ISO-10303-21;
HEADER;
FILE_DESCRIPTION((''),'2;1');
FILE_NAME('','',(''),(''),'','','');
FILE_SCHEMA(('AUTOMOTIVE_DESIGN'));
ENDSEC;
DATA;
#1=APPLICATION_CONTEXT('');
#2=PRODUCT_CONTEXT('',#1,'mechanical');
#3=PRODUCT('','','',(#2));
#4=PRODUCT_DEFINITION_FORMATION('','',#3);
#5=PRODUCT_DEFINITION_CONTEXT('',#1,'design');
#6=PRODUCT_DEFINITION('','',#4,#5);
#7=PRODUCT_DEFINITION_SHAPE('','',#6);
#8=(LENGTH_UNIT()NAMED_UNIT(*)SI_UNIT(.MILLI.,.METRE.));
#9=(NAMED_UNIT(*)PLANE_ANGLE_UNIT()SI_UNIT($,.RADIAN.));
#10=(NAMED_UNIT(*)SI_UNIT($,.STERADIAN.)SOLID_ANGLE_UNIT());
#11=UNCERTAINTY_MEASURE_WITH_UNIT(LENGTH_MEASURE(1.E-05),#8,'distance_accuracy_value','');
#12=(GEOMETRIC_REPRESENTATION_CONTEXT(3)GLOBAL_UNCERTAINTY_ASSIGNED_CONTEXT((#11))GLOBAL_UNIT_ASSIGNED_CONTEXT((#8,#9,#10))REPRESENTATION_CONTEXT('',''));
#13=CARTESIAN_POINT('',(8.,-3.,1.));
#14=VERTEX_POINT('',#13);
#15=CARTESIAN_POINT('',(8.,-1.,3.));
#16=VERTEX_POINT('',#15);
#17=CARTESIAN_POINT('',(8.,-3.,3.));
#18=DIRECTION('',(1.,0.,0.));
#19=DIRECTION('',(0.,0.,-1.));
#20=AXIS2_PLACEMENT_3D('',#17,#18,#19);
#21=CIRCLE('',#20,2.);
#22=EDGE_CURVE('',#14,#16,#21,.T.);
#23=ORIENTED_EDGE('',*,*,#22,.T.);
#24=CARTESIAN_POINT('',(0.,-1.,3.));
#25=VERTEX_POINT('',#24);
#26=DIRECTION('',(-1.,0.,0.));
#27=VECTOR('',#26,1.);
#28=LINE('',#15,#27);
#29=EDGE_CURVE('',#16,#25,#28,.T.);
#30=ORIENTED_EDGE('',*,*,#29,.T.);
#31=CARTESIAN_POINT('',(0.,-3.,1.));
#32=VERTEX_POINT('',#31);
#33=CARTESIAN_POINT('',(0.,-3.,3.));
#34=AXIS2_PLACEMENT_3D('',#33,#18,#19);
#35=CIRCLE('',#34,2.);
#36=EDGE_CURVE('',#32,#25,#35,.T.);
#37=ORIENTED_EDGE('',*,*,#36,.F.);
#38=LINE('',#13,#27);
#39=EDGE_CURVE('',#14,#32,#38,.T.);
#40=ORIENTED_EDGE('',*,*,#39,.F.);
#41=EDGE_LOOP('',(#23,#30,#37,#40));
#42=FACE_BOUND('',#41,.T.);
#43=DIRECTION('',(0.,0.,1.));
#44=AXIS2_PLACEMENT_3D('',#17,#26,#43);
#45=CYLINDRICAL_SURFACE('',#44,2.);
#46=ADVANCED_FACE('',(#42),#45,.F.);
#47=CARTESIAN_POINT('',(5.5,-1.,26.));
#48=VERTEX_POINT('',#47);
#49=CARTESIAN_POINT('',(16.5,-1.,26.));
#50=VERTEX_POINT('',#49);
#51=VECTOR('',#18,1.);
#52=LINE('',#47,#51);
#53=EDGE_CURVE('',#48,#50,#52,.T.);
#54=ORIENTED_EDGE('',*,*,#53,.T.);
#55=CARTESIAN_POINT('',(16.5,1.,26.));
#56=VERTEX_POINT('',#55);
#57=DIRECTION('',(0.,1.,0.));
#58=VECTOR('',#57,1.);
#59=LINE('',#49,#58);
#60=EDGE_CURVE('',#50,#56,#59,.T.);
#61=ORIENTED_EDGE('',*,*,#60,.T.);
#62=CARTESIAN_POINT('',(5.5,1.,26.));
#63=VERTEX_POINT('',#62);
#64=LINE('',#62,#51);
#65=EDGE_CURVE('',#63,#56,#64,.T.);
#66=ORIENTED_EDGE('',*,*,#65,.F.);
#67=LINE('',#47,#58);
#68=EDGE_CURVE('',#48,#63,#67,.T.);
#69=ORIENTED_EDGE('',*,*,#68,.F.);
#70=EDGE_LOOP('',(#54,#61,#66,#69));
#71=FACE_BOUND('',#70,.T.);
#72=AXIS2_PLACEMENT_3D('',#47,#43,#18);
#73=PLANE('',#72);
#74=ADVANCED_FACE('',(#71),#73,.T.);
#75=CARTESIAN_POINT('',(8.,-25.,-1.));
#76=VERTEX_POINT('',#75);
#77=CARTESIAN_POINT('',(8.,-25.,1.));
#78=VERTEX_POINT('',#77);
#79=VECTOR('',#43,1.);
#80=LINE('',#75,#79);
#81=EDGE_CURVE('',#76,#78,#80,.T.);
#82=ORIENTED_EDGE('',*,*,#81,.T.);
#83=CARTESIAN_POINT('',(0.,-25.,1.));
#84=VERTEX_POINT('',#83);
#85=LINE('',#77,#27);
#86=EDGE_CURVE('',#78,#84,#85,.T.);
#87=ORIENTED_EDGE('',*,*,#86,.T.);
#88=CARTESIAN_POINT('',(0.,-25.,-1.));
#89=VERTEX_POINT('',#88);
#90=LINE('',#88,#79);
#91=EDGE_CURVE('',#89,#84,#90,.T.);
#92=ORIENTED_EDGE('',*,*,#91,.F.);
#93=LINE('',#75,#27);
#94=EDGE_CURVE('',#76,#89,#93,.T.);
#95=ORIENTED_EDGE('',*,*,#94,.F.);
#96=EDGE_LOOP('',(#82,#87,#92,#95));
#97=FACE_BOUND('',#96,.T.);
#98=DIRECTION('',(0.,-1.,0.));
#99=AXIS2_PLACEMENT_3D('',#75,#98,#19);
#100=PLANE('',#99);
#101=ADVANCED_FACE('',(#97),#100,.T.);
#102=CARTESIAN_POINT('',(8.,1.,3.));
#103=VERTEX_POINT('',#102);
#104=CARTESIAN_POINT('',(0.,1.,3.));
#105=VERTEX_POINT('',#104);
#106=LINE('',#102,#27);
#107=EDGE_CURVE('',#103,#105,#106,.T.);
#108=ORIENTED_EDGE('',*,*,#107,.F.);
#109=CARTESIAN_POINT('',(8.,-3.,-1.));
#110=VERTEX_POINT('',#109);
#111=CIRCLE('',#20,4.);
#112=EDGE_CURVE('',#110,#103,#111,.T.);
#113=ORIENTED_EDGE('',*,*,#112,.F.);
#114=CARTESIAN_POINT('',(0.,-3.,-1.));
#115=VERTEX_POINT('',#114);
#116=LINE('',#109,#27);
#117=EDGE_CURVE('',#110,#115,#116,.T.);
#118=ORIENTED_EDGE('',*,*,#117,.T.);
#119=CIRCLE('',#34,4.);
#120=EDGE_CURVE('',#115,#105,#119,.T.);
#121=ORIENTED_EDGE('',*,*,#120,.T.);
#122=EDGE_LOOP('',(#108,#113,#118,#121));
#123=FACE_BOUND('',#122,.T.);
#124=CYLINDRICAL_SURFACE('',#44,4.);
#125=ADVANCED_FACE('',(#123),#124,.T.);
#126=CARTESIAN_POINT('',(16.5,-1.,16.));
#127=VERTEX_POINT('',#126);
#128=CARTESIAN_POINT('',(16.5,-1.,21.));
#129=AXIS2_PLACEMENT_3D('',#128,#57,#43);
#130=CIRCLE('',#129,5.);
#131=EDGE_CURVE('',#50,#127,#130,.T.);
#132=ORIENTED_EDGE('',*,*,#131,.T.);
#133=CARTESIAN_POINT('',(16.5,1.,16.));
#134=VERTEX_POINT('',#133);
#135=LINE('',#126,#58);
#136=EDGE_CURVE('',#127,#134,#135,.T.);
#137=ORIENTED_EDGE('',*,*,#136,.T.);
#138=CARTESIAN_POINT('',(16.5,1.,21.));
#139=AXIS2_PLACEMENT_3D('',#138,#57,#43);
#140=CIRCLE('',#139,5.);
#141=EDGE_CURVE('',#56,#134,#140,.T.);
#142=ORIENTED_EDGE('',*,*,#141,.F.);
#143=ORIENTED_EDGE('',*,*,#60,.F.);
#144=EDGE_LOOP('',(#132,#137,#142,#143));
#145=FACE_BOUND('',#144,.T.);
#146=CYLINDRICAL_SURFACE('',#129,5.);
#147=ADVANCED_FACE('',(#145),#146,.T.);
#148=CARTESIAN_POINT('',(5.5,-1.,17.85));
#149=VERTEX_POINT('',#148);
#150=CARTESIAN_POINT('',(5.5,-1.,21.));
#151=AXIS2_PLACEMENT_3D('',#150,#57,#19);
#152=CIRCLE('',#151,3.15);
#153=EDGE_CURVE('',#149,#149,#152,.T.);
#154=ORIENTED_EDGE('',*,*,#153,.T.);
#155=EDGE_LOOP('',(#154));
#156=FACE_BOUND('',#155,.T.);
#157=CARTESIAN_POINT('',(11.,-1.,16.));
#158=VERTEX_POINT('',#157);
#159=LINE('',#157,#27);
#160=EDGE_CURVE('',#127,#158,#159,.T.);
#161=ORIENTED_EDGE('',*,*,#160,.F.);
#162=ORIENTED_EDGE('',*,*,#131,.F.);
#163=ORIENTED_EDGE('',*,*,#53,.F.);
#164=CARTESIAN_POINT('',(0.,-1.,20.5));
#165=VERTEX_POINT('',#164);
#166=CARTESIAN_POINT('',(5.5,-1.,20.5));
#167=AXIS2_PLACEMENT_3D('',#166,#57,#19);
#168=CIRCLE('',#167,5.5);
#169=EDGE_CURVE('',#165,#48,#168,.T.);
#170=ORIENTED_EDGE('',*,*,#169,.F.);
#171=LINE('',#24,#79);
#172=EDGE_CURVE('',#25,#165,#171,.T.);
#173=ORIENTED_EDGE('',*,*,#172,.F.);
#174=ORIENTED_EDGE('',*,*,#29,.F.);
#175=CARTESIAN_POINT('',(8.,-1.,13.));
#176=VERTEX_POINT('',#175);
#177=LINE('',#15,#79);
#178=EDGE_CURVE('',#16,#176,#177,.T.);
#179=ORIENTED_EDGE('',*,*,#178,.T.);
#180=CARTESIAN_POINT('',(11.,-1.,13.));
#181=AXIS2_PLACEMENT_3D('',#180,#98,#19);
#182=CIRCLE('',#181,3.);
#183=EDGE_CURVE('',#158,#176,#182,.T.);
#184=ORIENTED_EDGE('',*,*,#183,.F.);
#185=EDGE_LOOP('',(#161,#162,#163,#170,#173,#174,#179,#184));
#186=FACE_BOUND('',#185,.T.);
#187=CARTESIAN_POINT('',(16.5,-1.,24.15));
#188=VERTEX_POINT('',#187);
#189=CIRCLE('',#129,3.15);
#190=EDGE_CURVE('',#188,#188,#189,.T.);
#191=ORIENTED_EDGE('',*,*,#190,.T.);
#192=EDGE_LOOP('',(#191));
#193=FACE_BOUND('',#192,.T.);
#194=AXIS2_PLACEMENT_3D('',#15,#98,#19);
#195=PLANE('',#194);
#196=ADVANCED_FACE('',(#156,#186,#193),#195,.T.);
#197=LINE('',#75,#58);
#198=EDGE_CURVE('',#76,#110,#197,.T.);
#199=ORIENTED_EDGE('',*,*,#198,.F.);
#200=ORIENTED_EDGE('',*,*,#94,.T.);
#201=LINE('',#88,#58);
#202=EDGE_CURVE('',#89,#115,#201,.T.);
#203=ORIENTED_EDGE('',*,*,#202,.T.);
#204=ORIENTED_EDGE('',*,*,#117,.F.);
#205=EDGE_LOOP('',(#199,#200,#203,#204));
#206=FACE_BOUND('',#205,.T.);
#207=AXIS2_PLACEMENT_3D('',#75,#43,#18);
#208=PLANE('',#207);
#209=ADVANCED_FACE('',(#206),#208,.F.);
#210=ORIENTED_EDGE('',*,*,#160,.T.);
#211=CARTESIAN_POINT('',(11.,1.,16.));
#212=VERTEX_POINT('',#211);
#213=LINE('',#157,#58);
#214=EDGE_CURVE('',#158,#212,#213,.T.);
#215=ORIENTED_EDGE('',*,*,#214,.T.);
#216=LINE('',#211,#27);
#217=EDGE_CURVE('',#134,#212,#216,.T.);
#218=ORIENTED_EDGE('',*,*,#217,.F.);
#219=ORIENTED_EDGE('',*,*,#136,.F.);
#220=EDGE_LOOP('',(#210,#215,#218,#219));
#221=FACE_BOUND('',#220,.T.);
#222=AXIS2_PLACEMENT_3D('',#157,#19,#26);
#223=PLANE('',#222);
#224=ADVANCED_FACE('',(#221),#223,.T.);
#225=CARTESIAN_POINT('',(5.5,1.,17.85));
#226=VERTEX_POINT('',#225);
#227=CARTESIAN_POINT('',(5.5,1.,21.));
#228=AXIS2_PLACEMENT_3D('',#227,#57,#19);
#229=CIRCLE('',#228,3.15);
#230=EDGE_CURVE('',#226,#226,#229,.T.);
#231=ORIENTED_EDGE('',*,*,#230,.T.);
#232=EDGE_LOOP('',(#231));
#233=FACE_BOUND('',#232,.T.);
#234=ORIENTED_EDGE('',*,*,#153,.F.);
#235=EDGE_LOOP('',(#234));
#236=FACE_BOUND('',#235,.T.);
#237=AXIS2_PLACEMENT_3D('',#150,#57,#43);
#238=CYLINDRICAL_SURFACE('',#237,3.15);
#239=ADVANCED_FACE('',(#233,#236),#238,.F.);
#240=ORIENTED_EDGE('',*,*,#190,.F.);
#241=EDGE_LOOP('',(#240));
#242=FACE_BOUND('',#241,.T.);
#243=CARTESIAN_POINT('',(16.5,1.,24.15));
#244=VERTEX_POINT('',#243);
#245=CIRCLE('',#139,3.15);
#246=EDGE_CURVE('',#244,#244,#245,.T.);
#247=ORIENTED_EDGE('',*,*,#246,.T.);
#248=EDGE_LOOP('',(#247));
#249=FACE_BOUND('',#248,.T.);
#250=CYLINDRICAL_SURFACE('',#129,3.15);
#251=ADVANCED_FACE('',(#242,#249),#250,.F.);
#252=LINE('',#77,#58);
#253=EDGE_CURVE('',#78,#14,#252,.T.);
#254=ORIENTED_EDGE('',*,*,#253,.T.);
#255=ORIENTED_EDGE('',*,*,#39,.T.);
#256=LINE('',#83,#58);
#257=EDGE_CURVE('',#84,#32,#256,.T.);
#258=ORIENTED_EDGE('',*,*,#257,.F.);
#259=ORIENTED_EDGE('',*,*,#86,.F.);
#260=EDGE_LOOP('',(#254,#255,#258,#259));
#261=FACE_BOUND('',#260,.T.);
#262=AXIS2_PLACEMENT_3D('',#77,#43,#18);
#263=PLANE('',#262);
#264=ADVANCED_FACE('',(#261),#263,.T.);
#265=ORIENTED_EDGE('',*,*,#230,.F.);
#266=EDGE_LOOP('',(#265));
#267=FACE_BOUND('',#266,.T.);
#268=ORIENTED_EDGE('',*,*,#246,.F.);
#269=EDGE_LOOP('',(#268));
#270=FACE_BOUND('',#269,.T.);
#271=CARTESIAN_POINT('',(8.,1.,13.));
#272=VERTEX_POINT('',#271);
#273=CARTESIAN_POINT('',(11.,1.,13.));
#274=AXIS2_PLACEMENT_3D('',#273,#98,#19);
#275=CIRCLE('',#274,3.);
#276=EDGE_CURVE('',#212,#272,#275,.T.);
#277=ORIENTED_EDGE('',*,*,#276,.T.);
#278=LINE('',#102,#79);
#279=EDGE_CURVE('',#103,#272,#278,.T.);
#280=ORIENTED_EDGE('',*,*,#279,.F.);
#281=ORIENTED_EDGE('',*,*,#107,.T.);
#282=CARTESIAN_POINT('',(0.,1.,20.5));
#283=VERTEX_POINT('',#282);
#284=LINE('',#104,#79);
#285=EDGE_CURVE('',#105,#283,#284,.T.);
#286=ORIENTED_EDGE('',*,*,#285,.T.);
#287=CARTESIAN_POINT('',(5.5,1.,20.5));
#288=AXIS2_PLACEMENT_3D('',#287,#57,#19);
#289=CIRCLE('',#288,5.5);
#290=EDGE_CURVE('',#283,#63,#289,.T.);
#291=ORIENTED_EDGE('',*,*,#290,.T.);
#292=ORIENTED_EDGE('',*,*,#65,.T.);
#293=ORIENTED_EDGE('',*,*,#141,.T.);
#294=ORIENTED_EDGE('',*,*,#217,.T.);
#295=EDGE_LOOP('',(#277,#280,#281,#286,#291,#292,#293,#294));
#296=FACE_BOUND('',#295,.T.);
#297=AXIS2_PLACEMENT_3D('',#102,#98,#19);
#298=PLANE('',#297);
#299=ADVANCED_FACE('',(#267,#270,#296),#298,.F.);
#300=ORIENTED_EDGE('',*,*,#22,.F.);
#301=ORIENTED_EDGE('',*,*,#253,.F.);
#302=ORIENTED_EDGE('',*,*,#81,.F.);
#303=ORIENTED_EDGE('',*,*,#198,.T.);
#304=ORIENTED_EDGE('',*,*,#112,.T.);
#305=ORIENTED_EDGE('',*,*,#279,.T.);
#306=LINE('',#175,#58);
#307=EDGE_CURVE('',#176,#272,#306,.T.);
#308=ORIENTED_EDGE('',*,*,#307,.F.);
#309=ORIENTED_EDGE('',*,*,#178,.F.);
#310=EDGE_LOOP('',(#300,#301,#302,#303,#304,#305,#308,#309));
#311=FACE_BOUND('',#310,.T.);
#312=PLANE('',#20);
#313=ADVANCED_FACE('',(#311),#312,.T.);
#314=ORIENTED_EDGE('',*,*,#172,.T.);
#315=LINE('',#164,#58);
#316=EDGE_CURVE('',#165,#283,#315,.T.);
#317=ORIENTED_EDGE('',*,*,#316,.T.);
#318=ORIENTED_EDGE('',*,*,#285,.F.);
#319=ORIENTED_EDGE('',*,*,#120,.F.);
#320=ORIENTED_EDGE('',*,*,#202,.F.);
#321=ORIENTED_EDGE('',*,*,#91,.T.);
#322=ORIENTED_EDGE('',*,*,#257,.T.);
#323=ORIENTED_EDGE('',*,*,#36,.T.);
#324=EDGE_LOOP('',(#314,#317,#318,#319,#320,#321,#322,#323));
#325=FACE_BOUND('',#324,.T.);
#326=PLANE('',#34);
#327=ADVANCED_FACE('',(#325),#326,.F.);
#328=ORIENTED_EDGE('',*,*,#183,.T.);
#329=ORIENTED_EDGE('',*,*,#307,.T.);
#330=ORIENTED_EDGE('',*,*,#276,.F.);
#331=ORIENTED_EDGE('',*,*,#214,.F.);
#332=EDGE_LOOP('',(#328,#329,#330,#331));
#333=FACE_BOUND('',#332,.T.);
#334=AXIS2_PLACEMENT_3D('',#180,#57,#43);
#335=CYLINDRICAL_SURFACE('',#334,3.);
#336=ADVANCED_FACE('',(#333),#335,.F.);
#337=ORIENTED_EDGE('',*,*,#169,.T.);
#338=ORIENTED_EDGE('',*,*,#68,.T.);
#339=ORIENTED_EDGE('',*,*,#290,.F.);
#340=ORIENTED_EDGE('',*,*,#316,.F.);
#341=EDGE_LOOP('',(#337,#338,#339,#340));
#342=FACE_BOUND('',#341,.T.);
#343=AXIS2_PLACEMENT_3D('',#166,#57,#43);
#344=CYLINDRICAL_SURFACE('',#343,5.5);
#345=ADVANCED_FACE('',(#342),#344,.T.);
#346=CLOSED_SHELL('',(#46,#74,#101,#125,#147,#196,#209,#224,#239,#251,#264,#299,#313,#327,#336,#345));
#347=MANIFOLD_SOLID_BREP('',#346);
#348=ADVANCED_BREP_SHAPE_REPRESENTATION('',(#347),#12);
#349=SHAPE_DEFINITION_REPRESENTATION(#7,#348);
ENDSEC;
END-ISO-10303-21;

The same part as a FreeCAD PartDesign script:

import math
import FreeCAD as App
import Part
import Sketcher


def edges_at(feature, points):
    """Names of the edges that pass closest to the given points."""
    edges = feature.Shape.Edges
    near = lambda p: min(range(len(edges)), key=lambda i: edges[i].distToShape(Part.Vertex(*p))[0])
    return sorted({f"Edge{near(p) + 1}" for p in points})

doc = App.newDocument("Part")
body = doc.addObject("PartDesign::Body", "Body")

# Sketch on YZ plane
sketch1 = body.newObject("Sketcher::SketchObject", "Sketch")
sketch1.AttachmentSupport = (doc.getObject("YZ_Plane"), [""])
sketch1.MapMode = "FlatFace"
sketch1.addGeometry(Part.LineSegment(App.Vector(-25, -1, 0), App.Vector(-3, -1, 0)), False)
sketch1.addGeometry(Part.ArcOfCircle(Part.Circle(App.Vector(-3, 3, 0), App.Vector(0, 0, 1), 4), math.radians(-90), math.radians(0)), False)
sketch1.addGeometry(Part.LineSegment(App.Vector(1, 3, 0), App.Vector(1, 21, 0)), False)
sketch1.addGeometry(Part.LineSegment(App.Vector(1, 21, 0), App.Vector(-1, 21, 0)), False)
sketch1.addGeometry(Part.LineSegment(App.Vector(-1, 21, 0), App.Vector(-1, 3, 0)), False)
sketch1.addGeometry(Part.ArcOfCircle(Part.Circle(App.Vector(-3, 3, 0), App.Vector(0, 0, 1), 2), math.radians(-90), math.radians(0)), False)
sketch1.addGeometry(Part.LineSegment(App.Vector(-3, 1, 0), App.Vector(-25, 1, 0)), False)
sketch1.addGeometry(Part.LineSegment(App.Vector(-25, 1, 0), App.Vector(-25, -1, 0)), False)
sketch1.addConstraint(Sketcher.Constraint("Tangent", 0, 2, 1, 1))
sketch1.addConstraint(Sketcher.Constraint("Tangent", 1, 2, 2, 1))
sketch1.addConstraint(Sketcher.Constraint("Coincident", 2, 2, 3, 1))
sketch1.addConstraint(Sketcher.Constraint("Coincident", 3, 2, 4, 1))
sketch1.addConstraint(Sketcher.Constraint("Tangent", 4, 2, 5, 2))
sketch1.addConstraint(Sketcher.Constraint("Tangent", 5, 1, 6, 1))
sketch1.addConstraint(Sketcher.Constraint("Coincident", 6, 2, 7, 1))
sketch1.addConstraint(Sketcher.Constraint("Coincident", 7, 2, 0, 1))
sketch1.addConstraint(Sketcher.Constraint("Horizontal", 0))
sketch1.addConstraint(Sketcher.Constraint("Vertical", 2))
sketch1.addConstraint(Sketcher.Constraint("Horizontal", 3))
sketch1.addConstraint(Sketcher.Constraint("Vertical", 4))
sketch1.addConstraint(Sketcher.Constraint("Horizontal", 6))
sketch1.addConstraint(Sketcher.Constraint("Vertical", 7))
sketch1.addConstraint(Sketcher.Constraint("Coincident", 5, 3, 1, 3))
sketch1.addConstraint(Sketcher.Constraint("Radius", 1, 4.0))
sketch1.addConstraint(Sketcher.Constraint("Radius", 5, 2.0))
sketch1.addConstraint(Sketcher.Constraint("DistanceX", 0, 1, 0, 2, 22.0))
sketch1.addConstraint(Sketcher.Constraint("DistanceY", 2, 1, 2, 2, 18.0))
sketch1.addConstraint(Sketcher.Constraint("DistanceX", 1, 3, -1, 1, 3.0))
sketch1.addConstraint(Sketcher.Constraint("DistanceY", -1, 1, 1, 3, 3.0))
pad1 = body.newObject("PartDesign::Pad", "Pad")
pad1.Profile = sketch1
pad1.Length = 8
doc.recompute()

chamfer = body.newObject("PartDesign::Chamfer", "Chamfer")
chamfer.Base = (pad1, edges_at(pad1, [(0, 0, 21)]))
chamfer.Size = 6

# Sketch on XZ plane
sketch2 = body.newObject("Sketcher::SketchObject", "Sketch001")
sketch2.AttachmentSupport = (doc.getObject("XZ_Plane"), [""])
sketch2.MapMode = "FlatFace"
sketch2.AttachmentOffset = App.Placement(App.Vector(0, 0, -1), App.Rotation())
sketch2.addGeometry(Part.LineSegment(App.Vector(0, 3, 0), App.Vector(0, 20.5, 0)), False)
sketch2.addGeometry(Part.ArcOfCircle(Part.Circle(App.Vector(5.5, 20.5, 0), App.Vector(0, 0, 1), 5.5), math.radians(90), math.radians(180)), False)
sketch2.addGeometry(Part.LineSegment(App.Vector(5.5, 26, 0), App.Vector(16.5, 26, 0)), False)
sketch2.addGeometry(Part.ArcOfCircle(Part.Circle(App.Vector(16.5, 21, 0), App.Vector(0, 0, 1), 5), math.radians(-90), math.radians(90)), False)
sketch2.addGeometry(Part.LineSegment(App.Vector(16.5, 16, 0), App.Vector(11, 16, 0)), False)
sketch2.addGeometry(Part.ArcOfCircle(Part.Circle(App.Vector(11, 13, 0), App.Vector(0, 0, 1), 3), math.radians(90), math.radians(180)), False)
sketch2.addGeometry(Part.LineSegment(App.Vector(8, 13, 0), App.Vector(0, 3, 0)), False)
sketch2.addGeometry(Part.Circle(App.Vector(16.5, 21, 0), App.Vector(0, 0, 1), 3.1), False)
sketch2.addGeometry(Part.Circle(App.Vector(5.5, 21, 0), App.Vector(0, 0, 1), 3.1), False)
sketch2.addConstraint(Sketcher.Constraint("Tangent", 0, 2, 1, 2))
sketch2.addConstraint(Sketcher.Constraint("Tangent", 1, 1, 2, 1))
sketch2.addConstraint(Sketcher.Constraint("Tangent", 2, 2, 3, 2))
sketch2.addConstraint(Sketcher.Constraint("Tangent", 3, 1, 4, 1))
sketch2.addConstraint(Sketcher.Constraint("Tangent", 4, 2, 5, 1))
sketch2.addConstraint(Sketcher.Constraint("Coincident", 5, 2, 6, 1))
sketch2.addConstraint(Sketcher.Constraint("Coincident", 6, 2, 0, 1))
sketch2.addConstraint(Sketcher.Constraint("Vertical", 0))
sketch2.addConstraint(Sketcher.Constraint("Horizontal", 2))
sketch2.addConstraint(Sketcher.Constraint("Horizontal", 4))
sketch2.addConstraint(Sketcher.Constraint("Coincident", 7, 3, 3, 3))
sketch2.addConstraint(Sketcher.Constraint("Equal", 7, 8))
sketch2.addConstraint(Sketcher.Constraint("PointOnObject", 0, 2, -2))
sketch2.addConstraint(Sketcher.Constraint("Horizontal", 7, 3, 8, 3))
sketch2.addConstraint(Sketcher.Constraint("Vertical", 1, 3, 8, 3))
sketch2.addConstraint(Sketcher.Constraint("Radius", 3, 5.0))
sketch2.addConstraint(Sketcher.Constraint("Radius", 5, 3.0))
sketch2.addConstraint(Sketcher.Constraint("Diameter", 7, 6.3))
sketch2.addConstraint(Sketcher.Constraint("Radius", 1, 5.5))
sketch2.addConstraint(Sketcher.Constraint("DistanceX", 2, 1, 2, 2, 11.0))
sketch2.addConstraint(Sketcher.Constraint("DistanceX", 4, 2, 4, 1, 5.5))
sketch2.addConstraint(Sketcher.Constraint("DistanceY", 0, 1, 0, 2, 17.5))
sketch2.addConstraint(Sketcher.Constraint("DistanceY", -1, 1, 3, 3, 21.0))
sketch2.addConstraint(Sketcher.Constraint("DistanceY", -1, 1, 5, 2, 13.0))
pad2 = body.newObject("PartDesign::Pad", "Pad001")
pad2.Profile = sketch2
pad2.Length = 2

# Sketch on XZ plane
sketch3 = body.newObject("Sketcher::SketchObject", "Sketch002")
sketch3.AttachmentSupport = (doc.getObject("XZ_Plane"), [""])
sketch3.MapMode = "FlatFace"
sketch3.AttachmentOffset = App.Placement(App.Vector(0, 0, -1), App.Rotation())
sketch3.addGeometry(Part.Circle(App.Vector(5.5, 21, 0), App.Vector(0, 0, 1), 3.1), False)
sketch3.addConstraint(Sketcher.Constraint("Diameter", 0, 6.3))
sketch3.addConstraint(Sketcher.Constraint("DistanceY", -1, 1, 0, 3, 21.0))
sketch3.addConstraint(Sketcher.Constraint("DistanceX", -1, 1, 0, 3, 5.5))
pocket1 = body.newObject("PartDesign::Pocket", "Pocket")
pocket1.Profile = sketch3
pocket1.Length = 10.6
pocket1.Reversed = True

doc.recompute()
